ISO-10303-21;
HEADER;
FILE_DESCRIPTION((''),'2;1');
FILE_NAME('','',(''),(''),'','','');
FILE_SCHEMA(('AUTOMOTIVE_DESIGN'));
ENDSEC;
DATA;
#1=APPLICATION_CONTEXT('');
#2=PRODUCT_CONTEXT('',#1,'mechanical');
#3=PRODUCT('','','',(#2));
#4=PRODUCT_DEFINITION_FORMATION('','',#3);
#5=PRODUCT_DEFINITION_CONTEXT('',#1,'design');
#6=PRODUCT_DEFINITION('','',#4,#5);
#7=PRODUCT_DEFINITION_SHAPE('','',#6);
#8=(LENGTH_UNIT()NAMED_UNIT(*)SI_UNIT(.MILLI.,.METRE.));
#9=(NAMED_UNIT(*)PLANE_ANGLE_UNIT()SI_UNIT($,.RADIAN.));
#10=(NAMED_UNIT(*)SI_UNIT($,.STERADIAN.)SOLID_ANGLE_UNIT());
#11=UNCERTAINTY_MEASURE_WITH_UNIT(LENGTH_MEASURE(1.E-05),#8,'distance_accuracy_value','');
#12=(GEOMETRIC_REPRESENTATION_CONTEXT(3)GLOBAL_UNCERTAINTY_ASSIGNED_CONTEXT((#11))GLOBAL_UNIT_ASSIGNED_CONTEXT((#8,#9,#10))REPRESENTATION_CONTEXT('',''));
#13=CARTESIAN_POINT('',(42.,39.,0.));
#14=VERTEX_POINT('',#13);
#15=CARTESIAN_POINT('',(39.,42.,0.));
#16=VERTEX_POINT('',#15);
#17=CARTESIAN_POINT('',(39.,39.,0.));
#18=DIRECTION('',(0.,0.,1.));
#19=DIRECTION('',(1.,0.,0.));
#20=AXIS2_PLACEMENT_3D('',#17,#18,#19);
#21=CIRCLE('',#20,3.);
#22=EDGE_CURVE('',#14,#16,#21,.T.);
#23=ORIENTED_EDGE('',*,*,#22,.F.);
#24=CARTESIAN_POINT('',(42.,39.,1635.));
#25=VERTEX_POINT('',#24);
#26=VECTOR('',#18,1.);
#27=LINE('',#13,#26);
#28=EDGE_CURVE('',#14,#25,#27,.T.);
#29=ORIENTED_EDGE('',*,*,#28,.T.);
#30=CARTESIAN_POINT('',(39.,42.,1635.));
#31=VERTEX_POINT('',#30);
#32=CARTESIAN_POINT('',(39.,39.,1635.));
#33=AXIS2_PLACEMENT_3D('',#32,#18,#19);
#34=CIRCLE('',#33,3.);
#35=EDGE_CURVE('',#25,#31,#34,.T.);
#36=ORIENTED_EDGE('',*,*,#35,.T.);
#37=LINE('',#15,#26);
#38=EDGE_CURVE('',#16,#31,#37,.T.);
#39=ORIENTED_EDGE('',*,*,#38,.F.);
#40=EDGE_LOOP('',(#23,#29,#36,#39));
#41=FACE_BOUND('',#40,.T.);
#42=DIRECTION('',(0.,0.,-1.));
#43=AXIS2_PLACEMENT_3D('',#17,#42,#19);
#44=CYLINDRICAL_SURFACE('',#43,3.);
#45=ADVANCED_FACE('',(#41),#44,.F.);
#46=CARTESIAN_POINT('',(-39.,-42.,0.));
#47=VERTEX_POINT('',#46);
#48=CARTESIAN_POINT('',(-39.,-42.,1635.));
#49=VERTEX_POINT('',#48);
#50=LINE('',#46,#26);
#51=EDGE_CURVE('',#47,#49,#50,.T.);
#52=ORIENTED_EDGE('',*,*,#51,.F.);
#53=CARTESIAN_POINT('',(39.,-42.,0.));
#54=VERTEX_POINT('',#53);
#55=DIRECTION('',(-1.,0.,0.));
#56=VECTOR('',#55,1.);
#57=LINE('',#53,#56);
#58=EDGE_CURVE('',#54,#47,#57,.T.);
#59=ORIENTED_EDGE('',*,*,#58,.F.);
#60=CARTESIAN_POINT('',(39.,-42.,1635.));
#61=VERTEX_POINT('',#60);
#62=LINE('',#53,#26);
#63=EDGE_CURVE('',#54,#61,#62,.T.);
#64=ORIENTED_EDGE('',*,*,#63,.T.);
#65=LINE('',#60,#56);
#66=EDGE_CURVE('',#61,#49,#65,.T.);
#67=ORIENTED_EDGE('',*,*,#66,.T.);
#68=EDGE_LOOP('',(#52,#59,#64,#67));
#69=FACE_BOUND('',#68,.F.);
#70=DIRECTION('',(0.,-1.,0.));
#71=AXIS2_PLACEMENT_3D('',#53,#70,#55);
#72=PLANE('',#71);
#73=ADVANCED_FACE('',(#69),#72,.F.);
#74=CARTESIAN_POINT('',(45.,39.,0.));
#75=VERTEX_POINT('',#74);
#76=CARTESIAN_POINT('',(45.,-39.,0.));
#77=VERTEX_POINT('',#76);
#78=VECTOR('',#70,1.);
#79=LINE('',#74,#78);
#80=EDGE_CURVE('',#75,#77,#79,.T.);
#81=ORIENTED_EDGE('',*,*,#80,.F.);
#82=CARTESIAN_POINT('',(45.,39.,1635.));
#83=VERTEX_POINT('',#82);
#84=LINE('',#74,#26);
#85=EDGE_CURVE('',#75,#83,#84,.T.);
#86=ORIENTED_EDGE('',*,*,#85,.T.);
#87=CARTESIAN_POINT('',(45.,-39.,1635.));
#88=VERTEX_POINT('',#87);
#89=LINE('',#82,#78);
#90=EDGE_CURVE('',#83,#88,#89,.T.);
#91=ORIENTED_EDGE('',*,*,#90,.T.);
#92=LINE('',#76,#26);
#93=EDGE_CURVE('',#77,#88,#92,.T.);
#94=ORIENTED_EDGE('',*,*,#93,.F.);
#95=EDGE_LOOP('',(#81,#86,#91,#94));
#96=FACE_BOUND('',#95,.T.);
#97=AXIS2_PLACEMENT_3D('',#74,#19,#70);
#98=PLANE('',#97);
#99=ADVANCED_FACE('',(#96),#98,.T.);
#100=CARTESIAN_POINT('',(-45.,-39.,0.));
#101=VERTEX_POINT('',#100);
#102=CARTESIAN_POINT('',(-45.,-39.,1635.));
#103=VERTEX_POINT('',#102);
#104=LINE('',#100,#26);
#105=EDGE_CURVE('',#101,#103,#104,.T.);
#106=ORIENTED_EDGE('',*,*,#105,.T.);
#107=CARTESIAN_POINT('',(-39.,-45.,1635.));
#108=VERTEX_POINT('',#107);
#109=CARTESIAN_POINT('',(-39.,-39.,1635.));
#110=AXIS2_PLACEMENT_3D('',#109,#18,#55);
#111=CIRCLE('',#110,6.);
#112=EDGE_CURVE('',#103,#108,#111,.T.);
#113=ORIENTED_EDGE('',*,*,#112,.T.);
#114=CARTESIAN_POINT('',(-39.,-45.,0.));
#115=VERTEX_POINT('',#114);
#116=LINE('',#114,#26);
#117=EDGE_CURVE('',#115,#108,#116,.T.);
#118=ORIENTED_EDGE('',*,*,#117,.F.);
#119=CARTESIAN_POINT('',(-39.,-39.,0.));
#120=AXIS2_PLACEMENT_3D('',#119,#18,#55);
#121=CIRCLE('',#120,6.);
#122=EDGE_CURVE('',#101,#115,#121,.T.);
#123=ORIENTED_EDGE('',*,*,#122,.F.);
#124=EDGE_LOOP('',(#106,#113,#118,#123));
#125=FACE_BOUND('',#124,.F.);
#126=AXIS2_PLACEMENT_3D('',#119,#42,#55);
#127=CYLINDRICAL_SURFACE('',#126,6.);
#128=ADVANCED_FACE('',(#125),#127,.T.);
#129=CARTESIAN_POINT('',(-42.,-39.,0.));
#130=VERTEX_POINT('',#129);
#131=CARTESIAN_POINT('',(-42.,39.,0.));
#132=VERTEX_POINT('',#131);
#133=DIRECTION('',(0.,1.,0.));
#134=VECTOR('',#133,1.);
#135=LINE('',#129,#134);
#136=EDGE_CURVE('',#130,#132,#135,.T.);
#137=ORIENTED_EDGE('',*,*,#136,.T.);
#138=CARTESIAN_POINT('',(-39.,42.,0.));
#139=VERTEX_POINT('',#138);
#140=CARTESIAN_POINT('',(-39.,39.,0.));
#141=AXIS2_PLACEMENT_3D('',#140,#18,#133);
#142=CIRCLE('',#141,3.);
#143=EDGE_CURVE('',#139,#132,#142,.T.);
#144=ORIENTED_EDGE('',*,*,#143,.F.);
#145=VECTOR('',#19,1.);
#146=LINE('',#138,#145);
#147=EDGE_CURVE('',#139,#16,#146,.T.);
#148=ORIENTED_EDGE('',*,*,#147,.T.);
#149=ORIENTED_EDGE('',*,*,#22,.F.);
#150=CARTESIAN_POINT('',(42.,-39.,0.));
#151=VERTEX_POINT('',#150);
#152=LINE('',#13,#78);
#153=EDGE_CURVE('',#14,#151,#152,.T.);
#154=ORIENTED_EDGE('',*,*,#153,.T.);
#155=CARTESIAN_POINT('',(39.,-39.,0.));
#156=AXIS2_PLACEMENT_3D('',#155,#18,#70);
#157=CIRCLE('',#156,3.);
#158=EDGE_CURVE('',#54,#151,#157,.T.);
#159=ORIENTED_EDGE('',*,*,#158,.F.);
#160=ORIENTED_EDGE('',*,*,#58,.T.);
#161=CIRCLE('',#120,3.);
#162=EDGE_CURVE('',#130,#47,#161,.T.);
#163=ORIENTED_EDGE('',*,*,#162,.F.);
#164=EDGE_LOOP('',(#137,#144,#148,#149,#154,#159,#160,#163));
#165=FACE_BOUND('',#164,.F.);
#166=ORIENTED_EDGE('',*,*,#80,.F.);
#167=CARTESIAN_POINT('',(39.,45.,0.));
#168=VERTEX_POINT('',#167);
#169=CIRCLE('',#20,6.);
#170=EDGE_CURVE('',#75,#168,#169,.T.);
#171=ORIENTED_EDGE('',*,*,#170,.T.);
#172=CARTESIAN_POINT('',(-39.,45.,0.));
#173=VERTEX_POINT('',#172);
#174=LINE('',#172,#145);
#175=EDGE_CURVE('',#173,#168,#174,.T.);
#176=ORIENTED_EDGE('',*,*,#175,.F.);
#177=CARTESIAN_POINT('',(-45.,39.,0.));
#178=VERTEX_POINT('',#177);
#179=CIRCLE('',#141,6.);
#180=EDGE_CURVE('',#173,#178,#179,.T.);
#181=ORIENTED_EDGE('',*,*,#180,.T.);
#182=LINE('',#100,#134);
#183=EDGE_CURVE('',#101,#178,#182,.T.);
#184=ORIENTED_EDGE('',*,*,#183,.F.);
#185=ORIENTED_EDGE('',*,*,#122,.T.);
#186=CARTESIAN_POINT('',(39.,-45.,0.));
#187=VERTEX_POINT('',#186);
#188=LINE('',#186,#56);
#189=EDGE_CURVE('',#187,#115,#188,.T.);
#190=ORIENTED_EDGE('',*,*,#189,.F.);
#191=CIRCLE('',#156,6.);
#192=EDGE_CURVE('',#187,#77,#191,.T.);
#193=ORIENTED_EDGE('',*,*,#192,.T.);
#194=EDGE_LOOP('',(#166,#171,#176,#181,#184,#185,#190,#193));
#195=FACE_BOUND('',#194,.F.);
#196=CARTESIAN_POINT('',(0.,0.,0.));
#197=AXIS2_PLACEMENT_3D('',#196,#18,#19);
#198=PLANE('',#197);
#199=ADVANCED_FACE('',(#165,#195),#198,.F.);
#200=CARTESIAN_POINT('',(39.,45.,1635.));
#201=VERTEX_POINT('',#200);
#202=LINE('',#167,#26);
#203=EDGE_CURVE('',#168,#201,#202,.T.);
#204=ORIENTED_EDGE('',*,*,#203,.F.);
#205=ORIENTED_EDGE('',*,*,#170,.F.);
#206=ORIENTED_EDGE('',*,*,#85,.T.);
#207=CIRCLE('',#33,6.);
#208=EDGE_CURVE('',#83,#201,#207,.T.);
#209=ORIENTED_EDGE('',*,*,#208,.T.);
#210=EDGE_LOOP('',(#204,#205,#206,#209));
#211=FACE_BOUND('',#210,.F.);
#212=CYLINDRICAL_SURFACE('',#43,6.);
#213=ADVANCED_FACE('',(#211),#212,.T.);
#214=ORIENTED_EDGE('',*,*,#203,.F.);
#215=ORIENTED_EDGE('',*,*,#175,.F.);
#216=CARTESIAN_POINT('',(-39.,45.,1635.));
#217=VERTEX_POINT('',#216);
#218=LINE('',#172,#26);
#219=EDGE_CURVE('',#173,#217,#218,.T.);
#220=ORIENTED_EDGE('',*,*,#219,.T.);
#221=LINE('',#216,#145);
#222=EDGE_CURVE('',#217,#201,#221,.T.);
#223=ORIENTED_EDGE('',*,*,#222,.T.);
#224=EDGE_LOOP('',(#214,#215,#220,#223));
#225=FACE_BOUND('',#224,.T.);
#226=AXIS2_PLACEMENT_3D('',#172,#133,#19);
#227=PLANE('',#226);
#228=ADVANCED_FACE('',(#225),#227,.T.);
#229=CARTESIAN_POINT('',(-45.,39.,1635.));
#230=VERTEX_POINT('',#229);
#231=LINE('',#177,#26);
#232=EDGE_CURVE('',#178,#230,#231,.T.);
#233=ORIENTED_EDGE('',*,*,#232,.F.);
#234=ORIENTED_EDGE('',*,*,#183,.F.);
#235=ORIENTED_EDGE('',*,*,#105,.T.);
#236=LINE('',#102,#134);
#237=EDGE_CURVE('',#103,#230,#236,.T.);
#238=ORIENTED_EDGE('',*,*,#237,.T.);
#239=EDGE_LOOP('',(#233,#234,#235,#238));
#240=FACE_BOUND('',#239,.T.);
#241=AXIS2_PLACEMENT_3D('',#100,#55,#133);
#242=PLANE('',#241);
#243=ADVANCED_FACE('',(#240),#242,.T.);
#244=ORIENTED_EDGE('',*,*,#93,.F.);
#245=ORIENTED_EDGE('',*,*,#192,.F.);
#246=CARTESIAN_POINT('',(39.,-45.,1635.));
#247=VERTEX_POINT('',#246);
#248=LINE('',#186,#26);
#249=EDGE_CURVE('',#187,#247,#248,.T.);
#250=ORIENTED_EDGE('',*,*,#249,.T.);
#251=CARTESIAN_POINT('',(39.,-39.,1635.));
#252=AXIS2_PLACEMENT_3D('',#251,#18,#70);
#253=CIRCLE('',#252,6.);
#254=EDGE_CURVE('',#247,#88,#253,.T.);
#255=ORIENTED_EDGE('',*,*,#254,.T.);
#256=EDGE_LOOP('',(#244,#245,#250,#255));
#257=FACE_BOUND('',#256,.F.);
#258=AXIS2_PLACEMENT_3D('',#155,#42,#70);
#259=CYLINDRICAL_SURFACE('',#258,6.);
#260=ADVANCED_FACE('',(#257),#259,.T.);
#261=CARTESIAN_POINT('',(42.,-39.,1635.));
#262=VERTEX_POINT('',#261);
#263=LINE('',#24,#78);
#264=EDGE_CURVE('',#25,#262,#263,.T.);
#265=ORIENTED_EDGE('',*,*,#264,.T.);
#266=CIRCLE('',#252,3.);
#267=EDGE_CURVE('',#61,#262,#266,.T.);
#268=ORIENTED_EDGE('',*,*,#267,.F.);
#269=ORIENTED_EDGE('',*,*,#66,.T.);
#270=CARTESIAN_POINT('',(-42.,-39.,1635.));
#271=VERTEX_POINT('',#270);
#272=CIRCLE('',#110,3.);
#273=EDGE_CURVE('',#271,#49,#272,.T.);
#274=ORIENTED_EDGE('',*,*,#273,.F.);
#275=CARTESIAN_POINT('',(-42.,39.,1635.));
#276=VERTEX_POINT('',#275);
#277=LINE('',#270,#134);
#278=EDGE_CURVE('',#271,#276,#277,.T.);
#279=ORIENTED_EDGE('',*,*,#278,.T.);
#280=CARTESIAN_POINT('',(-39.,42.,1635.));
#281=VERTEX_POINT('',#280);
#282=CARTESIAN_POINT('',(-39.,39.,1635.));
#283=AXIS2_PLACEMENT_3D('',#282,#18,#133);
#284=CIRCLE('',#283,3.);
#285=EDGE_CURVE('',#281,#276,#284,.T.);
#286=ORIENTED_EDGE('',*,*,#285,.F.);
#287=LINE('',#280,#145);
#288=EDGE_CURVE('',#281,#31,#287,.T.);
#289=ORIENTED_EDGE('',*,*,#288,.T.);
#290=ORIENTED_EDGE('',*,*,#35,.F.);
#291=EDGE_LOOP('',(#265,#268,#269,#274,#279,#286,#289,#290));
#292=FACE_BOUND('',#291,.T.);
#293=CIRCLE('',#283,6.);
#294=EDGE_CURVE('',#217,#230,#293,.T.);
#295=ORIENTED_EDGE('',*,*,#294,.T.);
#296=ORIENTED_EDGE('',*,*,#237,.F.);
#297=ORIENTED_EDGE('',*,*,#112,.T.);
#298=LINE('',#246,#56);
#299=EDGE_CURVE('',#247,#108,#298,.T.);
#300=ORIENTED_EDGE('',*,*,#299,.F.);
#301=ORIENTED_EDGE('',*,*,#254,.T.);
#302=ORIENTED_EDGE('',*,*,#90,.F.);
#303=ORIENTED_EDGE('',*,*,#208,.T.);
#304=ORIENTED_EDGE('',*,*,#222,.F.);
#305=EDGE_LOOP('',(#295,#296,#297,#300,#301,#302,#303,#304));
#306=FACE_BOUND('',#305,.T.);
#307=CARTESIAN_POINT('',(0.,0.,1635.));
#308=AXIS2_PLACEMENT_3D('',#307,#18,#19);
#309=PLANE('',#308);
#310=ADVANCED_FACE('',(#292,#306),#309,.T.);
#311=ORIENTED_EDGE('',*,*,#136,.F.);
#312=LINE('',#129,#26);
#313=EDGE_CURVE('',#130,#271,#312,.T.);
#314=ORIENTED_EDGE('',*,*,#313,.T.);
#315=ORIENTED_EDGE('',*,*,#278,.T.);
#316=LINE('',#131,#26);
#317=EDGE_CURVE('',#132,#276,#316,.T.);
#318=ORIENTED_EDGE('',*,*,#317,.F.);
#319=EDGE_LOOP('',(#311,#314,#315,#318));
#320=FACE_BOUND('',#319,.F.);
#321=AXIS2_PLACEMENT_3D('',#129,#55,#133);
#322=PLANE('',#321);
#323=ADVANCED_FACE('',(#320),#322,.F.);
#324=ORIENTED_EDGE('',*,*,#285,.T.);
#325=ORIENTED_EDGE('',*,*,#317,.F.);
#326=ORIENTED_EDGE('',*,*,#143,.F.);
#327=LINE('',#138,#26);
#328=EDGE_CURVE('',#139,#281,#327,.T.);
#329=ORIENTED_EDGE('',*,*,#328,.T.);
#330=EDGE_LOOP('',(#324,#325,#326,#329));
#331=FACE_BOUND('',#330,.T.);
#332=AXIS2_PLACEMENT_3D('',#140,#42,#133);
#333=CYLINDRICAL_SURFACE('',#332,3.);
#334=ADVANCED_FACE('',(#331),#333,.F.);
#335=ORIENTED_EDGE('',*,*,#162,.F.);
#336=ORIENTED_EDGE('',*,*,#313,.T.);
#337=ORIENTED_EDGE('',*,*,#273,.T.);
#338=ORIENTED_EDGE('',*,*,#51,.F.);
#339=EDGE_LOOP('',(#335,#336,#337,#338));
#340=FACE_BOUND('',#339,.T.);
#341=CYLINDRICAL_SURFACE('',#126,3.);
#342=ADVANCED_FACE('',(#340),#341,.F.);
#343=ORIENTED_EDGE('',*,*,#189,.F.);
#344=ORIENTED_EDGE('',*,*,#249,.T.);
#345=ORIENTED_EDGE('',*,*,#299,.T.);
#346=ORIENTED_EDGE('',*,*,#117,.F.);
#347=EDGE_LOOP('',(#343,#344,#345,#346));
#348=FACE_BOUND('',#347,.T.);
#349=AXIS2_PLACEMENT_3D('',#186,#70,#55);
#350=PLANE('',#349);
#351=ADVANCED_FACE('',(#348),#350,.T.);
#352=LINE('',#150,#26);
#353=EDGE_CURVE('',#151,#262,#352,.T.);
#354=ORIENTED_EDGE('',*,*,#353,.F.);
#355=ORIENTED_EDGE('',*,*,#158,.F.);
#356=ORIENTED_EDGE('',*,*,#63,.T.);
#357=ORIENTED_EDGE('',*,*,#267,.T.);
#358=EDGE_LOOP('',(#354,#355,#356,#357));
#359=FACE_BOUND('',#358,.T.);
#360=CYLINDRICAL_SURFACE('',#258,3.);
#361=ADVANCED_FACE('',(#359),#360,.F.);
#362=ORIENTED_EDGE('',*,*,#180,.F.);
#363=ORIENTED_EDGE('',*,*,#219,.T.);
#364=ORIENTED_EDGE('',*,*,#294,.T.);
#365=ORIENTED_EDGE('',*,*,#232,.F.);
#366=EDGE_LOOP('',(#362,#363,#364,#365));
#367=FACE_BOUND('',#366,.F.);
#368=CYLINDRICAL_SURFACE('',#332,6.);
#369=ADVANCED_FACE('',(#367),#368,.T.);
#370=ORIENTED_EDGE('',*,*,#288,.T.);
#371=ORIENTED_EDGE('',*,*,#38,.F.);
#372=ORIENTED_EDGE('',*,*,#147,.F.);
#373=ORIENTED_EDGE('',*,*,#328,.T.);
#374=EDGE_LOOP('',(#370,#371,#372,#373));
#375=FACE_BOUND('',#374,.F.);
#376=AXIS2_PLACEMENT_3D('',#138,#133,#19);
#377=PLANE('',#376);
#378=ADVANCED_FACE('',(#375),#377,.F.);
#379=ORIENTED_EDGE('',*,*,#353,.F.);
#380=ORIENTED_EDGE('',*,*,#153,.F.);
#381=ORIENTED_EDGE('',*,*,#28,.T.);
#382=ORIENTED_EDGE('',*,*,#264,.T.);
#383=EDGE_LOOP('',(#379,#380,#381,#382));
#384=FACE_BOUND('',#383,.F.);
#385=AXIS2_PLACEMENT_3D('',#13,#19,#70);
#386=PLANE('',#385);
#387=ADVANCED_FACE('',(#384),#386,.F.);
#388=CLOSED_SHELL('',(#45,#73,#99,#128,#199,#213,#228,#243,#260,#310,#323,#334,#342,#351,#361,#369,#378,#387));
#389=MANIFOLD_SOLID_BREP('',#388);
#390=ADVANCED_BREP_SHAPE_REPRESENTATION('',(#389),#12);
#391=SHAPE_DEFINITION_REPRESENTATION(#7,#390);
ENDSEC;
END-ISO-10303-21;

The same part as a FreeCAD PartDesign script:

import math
import FreeCAD as App
import Part
import Sketcher

V = App.Vector

doc = App.newDocument("Part")
params = doc.addObject("Spreadsheet::Sheet", "Params")
for row, (alias, value) in enumerate([
    ("sketch1_radius", "6 mm"),
    ("sketch1_radius2", "3 mm"),
    ("pad1_length", "1635 mm"),
], start=1):
    params.set(f"A{row}", alias)
    params.set(f"B{row}", "=" + value)
    params.setAlias(f"B{row}", alias)

body = doc.addObject("PartDesign::Body", "Body")

sketch1 = doc.addObject("Sketcher::SketchObject", "Sketch")
body.addObject(sketch1)
sketch1.AttachmentSupport = (doc.XY_Plane, [""])
sketch1.MapMode = "FlatFace"
sketch1.addGeometry([
    Part.LineSegment(V(-45, 39, 0), V(-45, -39, 0)),
    Part.ArcOfCircle(Part.Circle(V(-39, -39, 0), V(0, 0, 1), 6), math.radians(180), math.radians(270)),
    Part.LineSegment(V(-39, -45, 0), V(39, -45, 0)),
    Part.ArcOfCircle(Part.Circle(V(39, -39, 0), V(0, 0, 1), 6), math.radians(-90), math.radians(0)),
    Part.LineSegment(V(45, -39, 0), V(45, 39, 0)),
    Part.ArcOfCircle(Part.Circle(V(39, 39, 0), V(0, 0, 1), 6), math.radians(0), math.radians(90)),
    Part.LineSegment(V(39, 45, 0), V(-39, 45, 0)),
    Part.ArcOfCircle(Part.Circle(V(-39, 39, 0), V(0, 0, 1), 6), math.radians(90), math.radians(180)),
    Part.ArcOfCircle(Part.Circle(V(-39, 39, 0), V(0, 0, 1), 3), math.radians(90), math.radians(180)),
    Part.LineSegment(V(-39, 42, 0), V(39, 42, 0)),
    Part.ArcOfCircle(Part.Circle(V(39, 39, 0), V(0, 0, 1), 3), math.radians(0), math.radians(90)),
    Part.LineSegment(V(42, 39, 0), V(42, -39, 0)),
    Part.ArcOfCircle(Part.Circle(V(39, -39, 0), V(0, 0, 1), 3), math.radians(-90), math.radians(0)),
    Part.LineSegment(V(39, -42, 0), V(-39, -42, 0)),
    Part.ArcOfCircle(Part.Circle(V(-39, -39, 0), V(0, 0, 1), 3), math.radians(180), math.radians(270)),
    Part.LineSegment(V(-42, -39, 0), V(-42, 39, 0)),
], False)
sketch1.addConstraint([
    Sketcher.Constraint("Tangent", 0, 2, 1, 1),
    Sketcher.Constraint("Tangent", 1, 2, 2, 1),
    Sketcher.Constraint("Tangent", 2, 2, 3, 1),
    Sketcher.Constraint("Tangent", 3, 2, 4, 1),
    Sketcher.Constraint("Tangent", 4, 2, 5, 1),
    Sketcher.Constraint("Tangent", 5, 2, 6, 1),
    Sketcher.Constraint("Tangent", 6, 2, 7, 1),
    Sketcher.Constraint("Tangent", 7, 2, 0, 1),
    Sketcher.Constraint("Tangent", 8, 1, 9, 1),
    Sketcher.Constraint("Tangent", 9, 2, 10, 2),
    Sketcher.Constraint("Tangent", 10, 1, 11, 1),
    Sketcher.Constraint("Tangent", 11, 2, 12, 2),
    Sketcher.Constraint("Tangent", 12, 1, 13, 1),
    Sketcher.Constraint("Tangent", 13, 2, 14, 2),
    Sketcher.Constraint("Tangent", 14, 1, 15, 1),
    Sketcher.Constraint("Tangent", 15, 2, 8, 2),
    Sketcher.Constraint("Vertical", 0),
    Sketcher.Constraint("Horizontal", 2),
    Sketcher.Constraint("Vertical", 4),
    Sketcher.Constraint("Horizontal", 6),
    Sketcher.Constraint("Horizontal", 9),
    Sketcher.Constraint("Vertical", 11),
    Sketcher.Constraint("Horizontal", 13),
    Sketcher.Constraint("Vertical", 15),
    Sketcher.Constraint("Coincident", 8, 3, 7, 3),
    Sketcher.Constraint("Coincident", 10, 3, 5, 3),
    Sketcher.Constraint("Coincident", 12, 3, 3, 3),
    Sketcher.Constraint("Equal", 1, 3),
    Sketcher.Constraint("Equal", 3, 5),
    Sketcher.Constraint("Equal", 5, 7),
    Sketcher.Constraint("Equal", 12, 14),
    Sketcher.Constraint("Symmetric", 1, 3, 5, 3, -1, 1),
    Sketcher.Constraint("Equal", 13, 0),
    Sketcher.Constraint("Radius", 1, 6.0),
    Sketcher.Constraint("Radius", 8, 3.0),
    Sketcher.Constraint("DistanceX", 0, 2, -1, 1, 45.0),
])
sketch1.setExpression("Constraints[33]", "Params.sketch1_radius")
sketch1.setExpression("Constraints[34]", "Params.sketch1_radius2")
pad1 = doc.addObject("PartDesign::Pad", "Pad")
body.addObject(pad1)
pad1.Profile = sketch1
pad1.setExpression("Length", "Params.pad1_length")

doc.recompute()
